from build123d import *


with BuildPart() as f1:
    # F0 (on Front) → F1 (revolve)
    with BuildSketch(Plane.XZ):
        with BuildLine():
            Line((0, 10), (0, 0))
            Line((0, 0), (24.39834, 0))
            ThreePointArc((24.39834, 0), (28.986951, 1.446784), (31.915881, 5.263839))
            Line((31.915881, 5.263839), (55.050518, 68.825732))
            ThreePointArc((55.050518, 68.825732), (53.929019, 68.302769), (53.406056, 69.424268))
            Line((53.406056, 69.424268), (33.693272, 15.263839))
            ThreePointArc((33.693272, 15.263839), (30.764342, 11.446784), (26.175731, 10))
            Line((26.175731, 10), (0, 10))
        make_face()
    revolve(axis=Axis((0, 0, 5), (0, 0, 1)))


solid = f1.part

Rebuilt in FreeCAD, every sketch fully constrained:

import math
import FreeCAD as App
import Part
import Sketcher

V = App.Vector
Q = App.Units.Quantity

doc = App.newDocument("Part")
body = doc.addObject("PartDesign::Body", "Body")

sketch1 = body.newObject("Sketcher::SketchObject", "Sketch")
sketch1.AttachmentSupport = (doc.getObject("XZ_Plane"), [""])
sketch1.MapMode = "FlatFace"
sketch1.addGeometry(Part.LineSegment(V(0, 10, 0), V(0, 0, 0)), False)
sketch1.addGeometry(Part.LineSegment(V(0, 0, 0), V(24.4, 0, 0)), False)
sketch1.addGeometry(Part.ArcOfCircle(Part.Circle(V(24.4, 8, 0), V(0, 0, 1), 8), math.radians(-90), math.radians(-20)), False)
sketch1.addGeometry(Part.LineSegment(V(31.9, 5.3, 0), V(55.1, 68.8, 0)), False)
sketch1.addGeometry(Part.ArcOfCircle(Part.Circle(V(54.2, 69.1, 0), V(0, 0, 1), 0.9), math.radians(160), math.radians(340)), False)
sketch1.addGeometry(Part.LineSegment(V(53.4, 69.4, 0), V(33.7, 15.3, 0)), False)
sketch1.addGeometry(Part.ArcOfCircle(Part.Circle(V(26.2, 18, 0), V(0, 0, 1), 8), math.radians(-90), math.radians(-20)), False)
sketch1.addGeometry(Part.LineSegment(V(26.2, 10, 0), V(0, 10, 0)), False)
sketch1.addConstraint(Sketcher.Constraint("Coincident", 0, 2, 1, 1))
sketch1.addConstraint(Sketcher.Constraint("Tangent", 1, 2, 2, 1))
sketch1.addConstraint(Sketcher.Constraint("Tangent", 2, 2, 3, 1))
sketch1.addConstraint(Sketcher.Constraint("Tangent", 3, 2, 4, 2))
sketch1.addConstraint(Sketcher.Constraint("Tangent", 4, 1, 5, 1))
sketch1.addConstraint(Sketcher.Constraint("Tangent", 5, 2, 6, 2))
sketch1.addConstraint(Sketcher.Constraint("Tangent", 6, 1, 7, 1))
sketch1.addConstraint(Sketcher.Constraint("Coincident", 7, 2, 0, 1))
sketch1.addConstraint(Sketcher.Constraint("Vertical", 0))
sketch1.addConstraint(Sketcher.Constraint("Horizontal", 1))
sketch1.addConstraint(Sketcher.Constraint("Horizontal", 7))
sketch1.addConstraint(Sketcher.Constraint("Coincident", 0, 2, -1, 1))
sketch1.addConstraint(Sketcher.Constraint("Equal", 2, 6))
sketch1.addConstraint(Sketcher.Constraint("Parallel", 3, 5))
sketch1.addConstraint(Sketcher.Constraint("DistanceY", 0, 2, 0, 1, Q("10 mm")))
sketch1.addConstraint(Sketcher.Constraint("Angle", 3, Q("70 deg")))
sketch1.addConstraint(Sketcher.Constraint("Radius", 4, Q("0.875 mm")))
sketch1.addConstraint(Sketcher.Constraint("DistanceY", -1, 1, 4, 3, Q("69.125 mm")))
sketch1.addConstraint(Sketcher.Constraint("Radius", 2, Q("8.000003 mm")))
sketch1.addConstraint(Sketcher.Constraint("DistanceX", 1, 1, 1, 2, Q("24.39834 mm")))
revolution = body.newObject("PartDesign::Revolution", "Revolution")
revolution.Profile = sketch1
revolution.ReferenceAxis = (sketch1, ["V_Axis"])
revolution.Angle = 360

doc.recompute()
